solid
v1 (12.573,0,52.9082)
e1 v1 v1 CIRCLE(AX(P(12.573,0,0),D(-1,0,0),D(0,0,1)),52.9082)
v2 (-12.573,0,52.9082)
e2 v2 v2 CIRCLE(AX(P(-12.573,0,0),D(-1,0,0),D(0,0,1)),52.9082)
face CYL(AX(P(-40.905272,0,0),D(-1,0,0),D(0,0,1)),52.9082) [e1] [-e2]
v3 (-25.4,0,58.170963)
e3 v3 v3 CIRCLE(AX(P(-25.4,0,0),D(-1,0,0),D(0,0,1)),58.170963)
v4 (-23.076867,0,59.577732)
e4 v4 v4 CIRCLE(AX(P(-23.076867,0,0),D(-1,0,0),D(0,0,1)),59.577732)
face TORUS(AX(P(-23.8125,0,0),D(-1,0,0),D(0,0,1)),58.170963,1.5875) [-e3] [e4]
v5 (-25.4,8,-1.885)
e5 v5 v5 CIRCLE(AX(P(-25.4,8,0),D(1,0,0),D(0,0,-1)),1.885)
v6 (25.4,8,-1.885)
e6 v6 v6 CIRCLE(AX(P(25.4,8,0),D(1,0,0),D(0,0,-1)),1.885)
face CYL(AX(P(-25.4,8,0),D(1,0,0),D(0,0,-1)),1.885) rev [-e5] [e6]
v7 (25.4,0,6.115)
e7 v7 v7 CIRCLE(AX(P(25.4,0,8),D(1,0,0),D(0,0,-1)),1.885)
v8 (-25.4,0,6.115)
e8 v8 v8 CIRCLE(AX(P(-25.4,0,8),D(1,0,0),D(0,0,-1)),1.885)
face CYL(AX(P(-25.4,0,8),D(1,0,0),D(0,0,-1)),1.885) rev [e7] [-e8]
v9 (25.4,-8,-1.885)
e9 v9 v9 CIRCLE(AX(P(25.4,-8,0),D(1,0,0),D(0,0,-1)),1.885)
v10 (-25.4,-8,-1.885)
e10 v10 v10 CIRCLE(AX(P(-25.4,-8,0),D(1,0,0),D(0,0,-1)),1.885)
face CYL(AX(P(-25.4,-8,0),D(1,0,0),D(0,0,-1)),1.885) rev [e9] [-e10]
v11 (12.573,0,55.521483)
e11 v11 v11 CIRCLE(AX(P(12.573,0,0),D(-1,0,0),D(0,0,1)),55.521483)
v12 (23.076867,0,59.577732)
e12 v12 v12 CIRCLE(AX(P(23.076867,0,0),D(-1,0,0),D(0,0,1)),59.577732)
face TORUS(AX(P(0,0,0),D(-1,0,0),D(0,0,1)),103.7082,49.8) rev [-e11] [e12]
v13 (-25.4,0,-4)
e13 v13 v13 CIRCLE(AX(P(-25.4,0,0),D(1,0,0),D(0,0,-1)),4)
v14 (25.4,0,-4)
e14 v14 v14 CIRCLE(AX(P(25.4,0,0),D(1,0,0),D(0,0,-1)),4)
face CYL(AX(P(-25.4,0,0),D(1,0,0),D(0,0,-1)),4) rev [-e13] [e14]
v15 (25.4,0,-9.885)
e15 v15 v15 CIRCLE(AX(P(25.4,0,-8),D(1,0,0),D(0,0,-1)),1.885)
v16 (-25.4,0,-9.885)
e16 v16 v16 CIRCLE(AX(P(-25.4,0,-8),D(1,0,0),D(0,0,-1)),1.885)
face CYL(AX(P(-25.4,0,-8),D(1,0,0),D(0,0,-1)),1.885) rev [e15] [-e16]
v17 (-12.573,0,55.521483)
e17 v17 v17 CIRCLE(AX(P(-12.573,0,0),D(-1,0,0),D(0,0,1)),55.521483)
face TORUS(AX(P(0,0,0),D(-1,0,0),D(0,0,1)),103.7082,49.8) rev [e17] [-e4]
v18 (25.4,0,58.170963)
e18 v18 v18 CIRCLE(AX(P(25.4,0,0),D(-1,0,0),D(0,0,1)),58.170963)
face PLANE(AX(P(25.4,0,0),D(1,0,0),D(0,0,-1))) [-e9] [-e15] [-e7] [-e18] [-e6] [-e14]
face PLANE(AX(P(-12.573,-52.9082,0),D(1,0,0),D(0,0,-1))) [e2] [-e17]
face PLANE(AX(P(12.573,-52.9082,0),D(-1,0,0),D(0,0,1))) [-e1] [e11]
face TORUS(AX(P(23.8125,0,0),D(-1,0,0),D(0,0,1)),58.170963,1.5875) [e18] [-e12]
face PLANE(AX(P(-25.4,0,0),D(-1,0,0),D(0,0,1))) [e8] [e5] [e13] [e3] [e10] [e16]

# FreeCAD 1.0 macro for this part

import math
import FreeCAD as App
import Part
import Sketcher

V = App.Vector
Q = App.Units.Quantity

doc = App.newDocument("Part")
params = doc.addObject("Spreadsheet::Sheet", "Params")
for row, (alias, value) in enumerate([
    ("sketch1_width", "2 in"),
    ("sketch1_radius", "0.0625 in"),
    ("sketch1_width2", "0.99 in"),
    ("revolution_angle", "360 deg"),
], start=1):
    params.set(f"A{row}", alias)
    params.set(f"B{row}", "=" + value)
    params.setAlias(f"B{row}", alias)

body = doc.addObject("PartDesign::Body", "Body")

sketch1 = body.newObject("Sketcher::SketchObject", "Sketch")
sketch1.AttachmentSupport = (doc.getObject("XY_Plane"), [""])
sketch1.MapMode = "FlatFace"
sketch1.addGeometry(Part.LineSegment(V(25.4, 0, 0), V(-25.4, 0, 0)), False)
sketch1.addGeometry(Part.LineSegment(V(-25.4, 0, 0), V(-25.4, -58.170963, 0)), False)
sketch1.addGeometry(Part.ArcOfCircle(Part.Circle(V(-23.8125, -58.170963, 0), V(0, 0, 1), 1.5875), math.radians(180), math.radians(297.606134)), False)
sketch1.addGeometry(Part.ArcOfCircle(Part.Circle(V(0, -103.7082, 0), V(0, 0, 1), 49.8), math.radians(104.623715), math.radians(117.606134)), False)
sketch1.addGeometry(Part.LineSegment(V(-12.573, -55.521483, 0), V(-12.573, -52.9082, 0)), False)
sketch1.addGeometry(Part.LineSegment(V(-12.573, -52.9082, 0), V(12.573, -52.9082, 0)), False)
sketch1.addGeometry(Part.LineSegment(V(12.573, -52.9082, 0), V(12.573, -55.521483, 0)), False)
sketch1.addGeometry(Part.ArcOfCircle(Part.Circle(V(0, -103.7082, 0), V(0, 0, 1), 49.8), math.radians(62.393866), math.radians(75.376285)), False)
sketch1.addGeometry(Part.ArcOfCircle(Part.Circle(V(23.8125, -58.170963, 0), V(0, 0, 1), 1.5875), math.radians(-117.606134), math.radians(0)), False)
sketch1.addGeometry(Part.LineSegment(V(25.4, -58.170963, 0), V(25.4, 0, 0)), False)
sketch1.addConstraint(Sketcher.Constraint("Coincident", 0, 2, 1, 1))
sketch1.addConstraint(Sketcher.Constraint("Tangent", 1, 2, 2, 1))
sketch1.addConstraint(Sketcher.Constraint("Tangent", 2, 2, 3, 2))
sketch1.addConstraint(Sketcher.Constraint("Coincident", 3, 1, 4, 1))
sketch1.addConstraint(Sketcher.Constraint("Coincident", 4, 2, 5, 1))
sketch1.addConstraint(Sketcher.Constraint("Coincident", 5, 2, 6, 1))
sketch1.addConstraint(Sketcher.Constraint("Coincident", 6, 2, 7, 2))
sketch1.addConstraint(Sketcher.Constraint("Tangent", 7, 1, 8, 1))
sketch1.addConstraint(Sketcher.Constraint("Tangent", 8, 2, 9, 1))
sketch1.addConstraint(Sketcher.Constraint("Coincident", 9, 2, 0, 1))
sketch1.addConstraint(Sketcher.Constraint("Horizontal", 0))
sketch1.addConstraint(Sketcher.Constraint("Vertical", 1))
sketch1.addConstraint(Sketcher.Constraint("Vertical", 4))
sketch1.addConstraint(Sketcher.Constraint("Horizontal", 5))
sketch1.addConstraint(Sketcher.Constraint("Vertical", 6))
sketch1.addConstraint(Sketcher.Constraint("Vertical", 9))
sketch1.addConstraint(Sketcher.Constraint("Coincident", 7, 3, 3, 3))
sketch1.addConstraint(Sketcher.Constraint("Equal", 3, 7))
sketch1.addConstraint(Sketcher.Constraint("Equal", 2, 8))
sketch1.addConstraint(Sketcher.Constraint("Symmetric", 0, 2, 9, 2, -1, 1))
sketch1.addConstraint(Sketcher.Constraint("Symmetric", 3, 1, 6, 2, -2))
sketch1.addConstraint(Sketcher.Constraint("DistanceX", 0, 2, 0, 1, Q("2 in")))
sketch1.addConstraint(Sketcher.Constraint("Radius", 2, Q("0.0625 in")))
sketch1.addConstraint(Sketcher.Constraint("DistanceX", 5, 1, 5, 2, Q("0.99 in")))
sketch1.addConstraint(Sketcher.Constraint("Radius", 3, 49.8))
sketch1.addConstraint(Sketcher.Constraint("DistanceY", 3, 3, -1, 1, Q("4.083 in")))
sketch1.addConstraint(Sketcher.Constraint("DistanceY", 4, 2, -1, 1, Q("2.083 in")))
sketch1.setExpression("Constraints[21]", "Params.sketch1_width")
sketch1.setExpression("Constraints[22]", "Params.sketch1_radius")
sketch1.setExpression("Constraints[23]", "Params.sketch1_width2")
revolution = body.newObject("PartDesign::Revolution", "Revolution")
revolution.Profile = sketch1
revolution.ReferenceAxis = (sketch1, ["H_Axis"])
revolution.setExpression("Angle", "Params.revolution_angle")

sketch2 = body.newObject("Sketcher::SketchObject", "Sketch001")
sketch2.AttachmentSupport = (doc.getObject("YZ_Plane"), [""])
sketch2.MapMode = "FlatFace"
sketch2.AttachmentOffset = App.Placement(V(0, 0, 1 * 25.4), App.Rotation())
sketch2.addGeometry(Part.Circle(V(0, 0, 0), V(0, 0, 1), 4), False)
sketch2.addGeometry(Part.Circle(V(8, 0, 0), V(0, 0, 1), 1.885), False)
sketch2.addGeometry(Part.Circle(V(0, -8, 0), V(0, 0, 1), 1.885), False)
sketch2.addGeometry(Part.Circle(V(-8, 0, 0), V(0, 0, 1), 1.885), False)
sketch2.addGeometry(Part.Circle(V(0, 8, 0), V(0, 0, 1), 1.885), False)
sketch2.addConstraint(Sketcher.Constraint("Coincident", 0, 3, -1, 1))
sketch2.addConstraint(Sketcher.Constraint("Equal", 1, 2))
sketch2.addConstraint(Sketcher.Constraint("Equal", 2, 3))
sketch2.addConstraint(Sketcher.Constraint("Equal", 3, 4))
sketch2.addConstraint(Sketcher.Constraint("Symmetric", 1, 3, 3, 3, -1, 1))
sketch2.addConstraint(Sketcher.Constraint("Symmetric", 2, 3, 4, 3, -1, 1))
sketch2.addConstraint(Sketcher.Constraint("PointOnObject", 1, 3, -1))
sketch2.addConstraint(Sketcher.Constraint("PointOnObject", 2, 3, -2))
sketch2.addConstraint(Sketcher.Constraint("Diameter", 0, 8.0))
sketch2.addConstraint(Sketcher.Constraint("Diameter", 1, 3.77))
sketch2.addConstraint(Sketcher.Constraint("DistanceX", -1, 1, 1, 3, 8.0))
sketch2.addConstraint(Sketcher.Constraint("DistanceY", 2, 3, -1, 1, 8.0))
pocket1 = body.newObject("PartDesign::Pocket", "Pocket")
pocket1.Profile = sketch2
pocket1.Type = "ThroughAll"

doc.recompute()
